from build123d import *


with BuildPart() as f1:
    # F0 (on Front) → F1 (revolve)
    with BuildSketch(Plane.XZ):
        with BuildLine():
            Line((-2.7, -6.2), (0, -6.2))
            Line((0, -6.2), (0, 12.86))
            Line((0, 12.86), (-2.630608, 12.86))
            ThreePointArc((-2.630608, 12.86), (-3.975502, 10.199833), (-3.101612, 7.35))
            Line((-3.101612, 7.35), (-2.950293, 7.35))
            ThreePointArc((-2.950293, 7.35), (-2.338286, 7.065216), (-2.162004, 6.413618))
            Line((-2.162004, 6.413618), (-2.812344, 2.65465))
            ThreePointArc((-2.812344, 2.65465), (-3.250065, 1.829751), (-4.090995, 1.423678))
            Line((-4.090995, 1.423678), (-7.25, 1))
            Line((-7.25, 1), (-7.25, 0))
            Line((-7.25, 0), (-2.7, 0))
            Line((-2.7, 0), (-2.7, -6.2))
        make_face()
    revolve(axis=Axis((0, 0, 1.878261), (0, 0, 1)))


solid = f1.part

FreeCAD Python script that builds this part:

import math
import FreeCAD as App
import Part
import Sketcher
from FreeCAD import Vector

doc = App.newDocument("Part")
body = doc.addObject("PartDesign::Body", "Body")

sketch1 = body.newObject("Sketcher::SketchObject", "Sketch")
sketch1.AttachmentSupport = (doc.getObject("XZ_Plane"), [""])
sketch1.MapMode = "FlatFace"
sketch1.addGeometry(Part.LineSegment(Vector(-2.7, -6.2, 0), Vector(0, -6.2, 0)), False)
sketch1.addGeometry(Part.LineSegment(Vector(0, -6.2, 0), Vector(0, 12.86, 0)), False)
sketch1.addGeometry(Part.LineSegment(Vector(0, 12.86, 0), Vector(-2.63, 12.86, 0)), False)
sketch1.addGeometry(Part.ArcOfCircle(Part.Circle(Vector(0, 9.86, 0), Vector(0, 0, 1), 3.99), math.radians(131), math.radians(219)), False)
sketch1.addGeometry(Part.LineSegment(Vector(-3.1, 7.35, 0), Vector(-2.95, 7.35, 0)), False)
sketch1.addGeometry(Part.ArcOfCircle(Part.Circle(Vector(-2.95, 6.55, 0), Vector(0, 0, 1), 0.8), math.radians(-10), math.radians(90)), False)
sketch1.addGeometry(Part.LineSegment(Vector(-2.16, 6.41, 0), Vector(-2.81, 2.65, 0)), False)
sketch1.addGeometry(Part.ArcOfCircle(Part.Circle(Vector(-4.29, 2.91, 0), Vector(0, 0, 1), 1.5), math.radians(-82), math.radians(-10)), False)
sketch1.addGeometry(Part.LineSegment(Vector(-4.09, 1.42, 0), Vector(-7.25, 1, 0)), False)
sketch1.addGeometry(Part.LineSegment(Vector(-7.25, 1, 0), Vector(-7.25, 0, 0)), False)
sketch1.addGeometry(Part.LineSegment(Vector(-7.25, 0, 0), Vector(-2.7, 0, 0)), False)
sketch1.addGeometry(Part.LineSegment(Vector(-2.7, 0, 0), Vector(-2.7, -6.2, 0)), False)
sketch1.addConstraint(Sketcher.Constraint("Coincident", 0, 2, 1, 1))
sketch1.addConstraint(Sketcher.Constraint("Coincident", 1, 2, 2, 1))
sketch1.addConstraint(Sketcher.Constraint("Coincident", 2, 2, 3, 1))
sketch1.addConstraint(Sketcher.Constraint("Coincident", 3, 2, 4, 1))
sketch1.addConstraint(Sketcher.Constraint("Tangent", 4, 2, 5, 2))
sketch1.addConstraint(Sketcher.Constraint("Tangent", 5, 1, 6, 1))
sketch1.addConstraint(Sketcher.Constraint("Tangent", 6, 2, 7, 2))
sketch1.addConstraint(Sketcher.Constraint("Tangent", 7, 1, 8, 1))
sketch1.addConstraint(Sketcher.Constraint("Coincident", 8, 2, 9, 1))
sketch1.addConstraint(Sketcher.Constraint("Coincident", 9, 2, 10, 1))
sketch1.addConstraint(Sketcher.Constraint("Coincident", 10, 2, 11, 1))
sketch1.addConstraint(Sketcher.Constraint("Coincident", 11, 2, 0, 1))
sketch1.addConstraint(Sketcher.Constraint("Horizontal", 0))
sketch1.addConstraint(Sketcher.Constraint("Vertical", 1))
sketch1.addConstraint(Sketcher.Constraint("Horizontal", 2))
sketch1.addConstraint(Sketcher.Constraint("Horizontal", 4))
sketch1.addConstraint(Sketcher.Constraint("Vertical", 9))
sketch1.addConstraint(Sketcher.Constraint("Horizontal", 10))
sketch1.addConstraint(Sketcher.Constraint("Vertical", 11))
sketch1.addConstraint(Sketcher.Constraint("PointOnObject", 0, 2, -2))
sketch1.addConstraint(Sketcher.Constraint("PointOnObject", 9, 2, -1))
sketch1.addConstraint(Sketcher.Constraint("Radius", 5, 0.8))
sketch1.addConstraint(Sketcher.Constraint("DistanceY", 9, 2, 9, 1, 1.0))
sketch1.addConstraint(Sketcher.Constraint("Radius", 3, 3.989998))
sketch1.addConstraint(Sketcher.Constraint("DistanceX", 0, 1, 0, 2, 2.7))
sketch1.addConstraint(Sketcher.Constraint("DistanceY", 11, 2, 11, 1, 6.2))
sketch1.addConstraint(Sketcher.Constraint("DistanceY", 3, 3, 1, 2, 3.0))
sketch1.addConstraint(Sketcher.Constraint("DistanceX", 10, 1, 10, 2, 4.55))
sketch1.addConstraint(Sketcher.Constraint("DistanceY", 1, 1, 1, 2, 19.06))
sketch1.addConstraint(Sketcher.Constraint("DistanceY", -1, 1, 5, 3, 6.55))
sketch1.addConstraint(Sketcher.Constraint("Radius", 7, 1.500002))
sketch1.addConstraint(Sketcher.Constraint("DistanceX", 5, 1, 3, 3, 2.162002))
sketch1.addConstraint(Sketcher.Constraint("DistanceX", 2, 2, 2, 1, 2.630608))
sketch1.addConstraint(Sketcher.Constraint("DistanceX", 4, 1, 4, 2, 0.151319))
sketch1.addConstraint(Sketcher.Constraint("Distance", 6, 3.814811))
revolution = body.newObject("PartDesign::Revolution", "Revolution")
revolution.Profile = sketch1
revolution.ReferenceAxis = (sketch1, ["V_Axis"])
revolution.Angle = 360

doc.recompute()
